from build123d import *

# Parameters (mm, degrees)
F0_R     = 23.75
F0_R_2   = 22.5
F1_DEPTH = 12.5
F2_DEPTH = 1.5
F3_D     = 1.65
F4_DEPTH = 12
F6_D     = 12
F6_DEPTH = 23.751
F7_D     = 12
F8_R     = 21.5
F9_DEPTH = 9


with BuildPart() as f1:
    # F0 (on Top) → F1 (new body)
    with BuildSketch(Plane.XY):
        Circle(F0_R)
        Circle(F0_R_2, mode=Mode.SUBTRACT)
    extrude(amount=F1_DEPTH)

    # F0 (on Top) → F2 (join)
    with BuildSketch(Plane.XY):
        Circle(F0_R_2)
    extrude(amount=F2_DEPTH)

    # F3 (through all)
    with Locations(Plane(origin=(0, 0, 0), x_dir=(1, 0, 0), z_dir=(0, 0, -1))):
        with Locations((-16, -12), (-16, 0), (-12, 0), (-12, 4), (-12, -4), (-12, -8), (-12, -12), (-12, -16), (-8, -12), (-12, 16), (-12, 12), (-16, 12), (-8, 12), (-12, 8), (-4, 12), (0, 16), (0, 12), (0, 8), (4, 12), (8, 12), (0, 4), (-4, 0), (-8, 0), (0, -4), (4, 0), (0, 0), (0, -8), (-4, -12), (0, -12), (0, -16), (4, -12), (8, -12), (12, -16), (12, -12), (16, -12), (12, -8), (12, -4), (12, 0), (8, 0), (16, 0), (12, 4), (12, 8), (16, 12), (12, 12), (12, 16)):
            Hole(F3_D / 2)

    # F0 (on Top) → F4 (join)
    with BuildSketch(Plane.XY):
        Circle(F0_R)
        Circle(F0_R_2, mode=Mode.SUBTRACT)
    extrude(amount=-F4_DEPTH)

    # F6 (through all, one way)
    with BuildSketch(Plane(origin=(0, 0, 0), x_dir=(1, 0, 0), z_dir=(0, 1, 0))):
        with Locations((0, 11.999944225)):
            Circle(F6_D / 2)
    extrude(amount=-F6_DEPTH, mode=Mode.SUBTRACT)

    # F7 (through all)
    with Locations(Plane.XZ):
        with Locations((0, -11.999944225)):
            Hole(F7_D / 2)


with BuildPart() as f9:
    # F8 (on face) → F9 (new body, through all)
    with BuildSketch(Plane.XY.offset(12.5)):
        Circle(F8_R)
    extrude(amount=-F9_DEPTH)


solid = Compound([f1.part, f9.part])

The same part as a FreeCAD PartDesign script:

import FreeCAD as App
import Part
import Sketcher
from FreeCAD import Vector
Q = App.Units.Quantity

doc = App.newDocument("Part")
body = doc.addObject("PartDesign::Body", "Body")

# Sketch on XY plane
sketch1 = body.newObject("Sketcher::SketchObject", "Sketch")
sketch1.AttachmentSupport = (doc.getObject("XY_Plane"), [""])
sketch1.MapMode = "FlatFace"
sketch1.addGeometry([
    Part.Circle(Vector(0, 0, 0), Vector(0, 0, 1), 23.75),
    Part.Circle(Vector(0, 0, 0), Vector(0, 0, 1), 22.5),
], False)
sketch1.addConstraint([
    Sketcher.Constraint("Coincident", 0, 3, -1, 1),
    Sketcher.Constraint("Coincident", 1, 3, -1, 1),
    Sketcher.Constraint("Diameter", 1, Q("45 mm")),
    Sketcher.Constraint("Diameter", 0, Q("47.5 mm")),
])
pad1 = body.newObject("PartDesign::Pad", "Pad")
pad1.Profile = sketch1
pad1.Length = 12.5

# Sketch on XY plane
sketch2 = body.newObject("Sketcher::SketchObject", "Sketch001")
sketch2.AttachmentSupport = (doc.getObject("XY_Plane"), [""])
sketch2.MapMode = "FlatFace"
sketch2.addGeometry(Part.Circle(Vector(0, 0, 0), Vector(0, 0, 1), 22.5), False)
sketch2.addConstraint([
    Sketcher.Constraint("Coincident", 0, 3, -1, 1),
    Sketcher.Constraint("Diameter", 0, Q("45 mm")),
])
pad2 = body.newObject("PartDesign::Pad", "Pad001")
pad2.Profile = sketch2
pad2.Length = 1.5

# Sketch on XY plane
sketch3 = body.newObject("Sketcher::SketchObject", "Sketch002")
sketch3.AttachmentSupport = (doc.getObject("XY_Plane"), [""])
sketch3.MapMode = "FlatFace"
sketch3.addGeometry([
    Part.Circle(Vector(-16, 12, 0), Vector(0, 0, 1), 0.825),  # 0
    Part.Circle(Vector(-16, 0, 0), Vector(0, 0, 1), 0.825),  # 1
    Part.Circle(Vector(-12, 0, 0), Vector(0, 0, 1), 0.825),  # 2
    Part.Circle(Vector(-12, -4, 0), Vector(0, 0, 1), 0.825),  # 3
    Part.Circle(Vector(-12, 4, 0), Vector(0, 0, 1), 0.825),  # 4
    Part.Circle(Vector(-12, 8, 0), Vector(0, 0, 1), 0.825),  # 5
    Part.Circle(Vector(-12, 12, 0), Vector(0, 0, 1), 0.825),  # 6
    Part.Circle(Vector(-12, 16, 0), Vector(0, 0, 1), 0.825),  # 7
    Part.Circle(Vector(-8, 12, 0), Vector(0, 0, 1), 0.825),  # 8
    Part.Circle(Vector(-12, -16, 0), Vector(0, 0, 1), 0.825),  # 9
    Part.Circle(Vector(-12, -12, 0), Vector(0, 0, 1), 0.825),  # 10
    Part.Circle(Vector(-16, -12, 0), Vector(0, 0, 1), 0.825),  # 11
    Part.Circle(Vector(-8, -12, 0), Vector(0, 0, 1), 0.825),  # 12
    Part.Circle(Vector(-12, -8, 0), Vector(0, 0, 1), 0.825),  # 13
    Part.Circle(Vector(-4, -12, 0), Vector(0, 0, 1), 0.825),  # 14
    Part.Circle(Vector(0, -16, 0), Vector(0, 0, 1), 0.825),  # 15
    Part.Circle(Vector(0, -12, 0), Vector(0, 0, 1), 0.825),  # 16
    Part.Circle(Vector(0, -8, 0), Vector(0, 0, 1), 0.825),  # 17
    Part.Circle(Vector(4, -12, 0), Vector(0, 0, 1), 0.825),  # 18
    Part.Circle(Vector(8, -12, 0), Vector(0, 0, 1), 0.825),  # 19
    Part.Circle(Vector(0, -4, 0), Vector(0, 0, 1), 0.825),  # 20
    Part.Circle(Vector(-4, 0, 0), Vector(0, 0, 1), 0.825),  # 21
    Part.Circle(Vector(-8, 0, 0), Vector(0, 0, 1), 0.825),  # 22
    Part.Circle(Vector(0, 4, 0), Vector(0, 0, 1), 0.825),  # 23
    Part.Circle(Vector(4, 0, 0), Vector(0, 0, 1), 0.825),  # 24
    Part.Circle(Vector(0, 0, 0), Vector(0, 0, 1), 0.825),  # 25
    Part.Circle(Vector(0, 8, 0), Vector(0, 0, 1), 0.825),  # 26
    Part.Circle(Vector(-4, 12, 0), Vector(0, 0, 1), 0.825),  # 27
    Part.Circle(Vector(0, 12, 0), Vector(0, 0, 1), 0.825),  # 28
    Part.Circle(Vector(0, 16, 0), Vector(0, 0, 1), 0.825),  # 29
    Part.Circle(Vector(4, 12, 0), Vector(0, 0, 1), 0.825),  # 30
    Part.Circle(Vector(8, 12, 0), Vector(0, 0, 1), 0.825),  # 31
    Part.Circle(Vector(12, 16, 0), Vector(0, 0, 1), 0.825),  # 32
    Part.Circle(Vector(12, 12, 0), Vector(0, 0, 1), 0.825),  # 33
    Part.Circle(Vector(16, 12, 0), Vector(0, 0, 1), 0.825),  # 34
    Part.Circle(Vector(12, 8, 0), Vector(0, 0, 1), 0.825),  # 35
    Part.Circle(Vector(12, 4, 0), Vector(0, 0, 1), 0.825),  # 36
    Part.Circle(Vector(12, 0, 0), Vector(0, 0, 1), 0.825),  # 37
    Part.Circle(Vector(8, 0, 0), Vector(0, 0, 1), 0.825),  # 38
    Part.Circle(Vector(16, 0, 0), Vector(0, 0, 1), 0.825),  # 39
    Part.Circle(Vector(12, -4, 0), Vector(0, 0, 1), 0.825),  # 40
    Part.Circle(Vector(12, -8, 0), Vector(0, 0, 1), 0.825),  # 41
    Part.Circle(Vector(16, -12, 0), Vector(0, 0, 1), 0.825),  # 42
    Part.Circle(Vector(12, -12, 0), Vector(0, 0, 1), 0.825),  # 43
    Part.Circle(Vector(12, -16, 0), Vector(0, 0, 1), 0.825),  # 44
], False)
sketch3.addConstraint([
    Sketcher.Constraint("Coincident", 25, 3, -1, 1),
    Sketcher.Constraint("Equal", 0, 1),
    Sketcher.Constraint("Equal", 1, 2),
    Sketcher.Constraint("Equal", 2, 3),
    Sketcher.Constraint("Equal", 3, 4),
    Sketcher.Constraint("Equal", 4, 5),
    Sketcher.Constraint("Equal", 5, 6),
    Sketcher.Constraint("Equal", 6, 7),
    Sketcher.Constraint("Equal", 7, 8),
    Sketcher.Constraint("Equal", 8, 9),
    Sketcher.Constraint("Equal", 9, 10),
    Sketcher.Constraint("Equal", 10, 11),
    Sketcher.Constraint("Equal", 11, 12),
    Sketcher.Constraint("Equal", 12, 13),
    Sketcher.Constraint("Equal", 13, 14),
    Sketcher.Constraint("Equal", 14, 15),
    Sketcher.Constraint("Equal", 15, 16),
    Sketcher.Constraint("Equal", 16, 17),
    Sketcher.Constraint("Equal", 17, 18),
    Sketcher.Constraint("Equal", 18, 19),
    Sketcher.Constraint("Equal", 19, 20),
    Sketcher.Constraint("Equal", 20, 21),
    Sketcher.Constraint("Equal", 21, 22),
    Sketcher.Constraint("Equal", 22, 23),
    Sketcher.Constraint("Equal", 23, 24),
    Sketcher.Constraint("Equal", 24, 25),
    Sketcher.Constraint("Equal", 25, 26),
    Sketcher.Constraint("Equal", 26, 27),
    Sketcher.Constraint("Equal", 27, 28),
    Sketcher.Constraint("Equal", 28, 29),
    Sketcher.Constraint("Equal", 29, 30),
    Sketcher.Constraint("Equal", 30, 31),
    Sketcher.Constraint("Equal", 31, 32),
    Sketcher.Constraint("Equal", 32, 33),
    Sketcher.Constraint("Equal", 33, 34),
    Sketcher.Constraint("Equal", 34, 35),
    Sketcher.Constraint("Equal", 35, 36),
    Sketcher.Constraint("Equal", 36, 37),
    Sketcher.Constraint("Equal", 37, 38),
    Sketcher.Constraint("Equal", 38, 39),
    Sketcher.Constraint("Equal", 39, 40),
    Sketcher.Constraint("Equal", 40, 41),
    Sketcher.Constraint("Equal", 41, 42),
    Sketcher.Constraint("Equal", 42, 43),
    Sketcher.Constraint("Equal", 43, 44),
    Sketcher.Constraint("Symmetric", 8, 3, 19, 3, -1, 1),
    Sketcher.Constraint("Symmetric", 20, 3, 23, 3, -1, 1),
    Sketcher.Constraint("Symmetric", 21, 3, 24, 3, -1, 1),
    Sketcher.Constraint("Symmetric", 17, 3, 26, 3, -1, 1),
    Sketcher.Constraint("Symmetric", 18, 3, 27, 3, -1, 1),
    Sketcher.Constraint("Symmetric", 16, 3, 28, 3, -1, 1),
    Sketcher.Constraint("Symmetric", 15, 3, 29, 3, -1, 1),
    Sketcher.Constraint("Symmetric", 14, 3, 30, 3, -1, 1),
    Sketcher.Constraint("Symmetric", 12, 3, 31, 3, -1, 1),
    Sketcher.Constraint("Symmetric", 9, 3, 32, 3, -1, 1),
    Sketcher.Constraint("Symmetric", 10, 3, 33, 3, -1, 1),
    Sketcher.Constraint("Symmetric", 11, 3, 34, 3, -1, 1),
    Sketcher.Constraint("Symmetric", 13, 3, 35, 3, -1, 1),
    Sketcher.Constraint("Symmetric", 3, 3, 36, 3, -1, 1),
    Sketcher.Constraint("Symmetric", 2, 3, 37, 3, -1, 1),
    Sketcher.Constraint("Symmetric", 22, 3, 38, 3, -1, 1),
    Sketcher.Constraint("Symmetric", 1, 3, 39, 3, -1, 1),
    Sketcher.Constraint("Symmetric", 4, 3, 40, 3, -1, 1),
    Sketcher.Constraint("Symmetric", 5, 3, 41, 3, -1, 1),
    Sketcher.Constraint("Symmetric", 0, 3, 42, 3, -1, 1),
    Sketcher.Constraint("Symmetric", 6, 3, 43, 3, -1, 1),
    Sketcher.Constraint("Symmetric", 7, 3, 44, 3, -1, 1),
    Sketcher.Constraint("Symmetric", 14, 3, 18, 3, -2),
    Sketcher.Constraint("Symmetric", 12, 3, 19, 3, -2),
    Sketcher.Constraint("Symmetric", 7, 3, 32, 3, -2),
    Sketcher.Constraint("Symmetric", 6, 3, 33, 3, -2),
    Sketcher.Constraint("Symmetric", 0, 3, 34, 3, -2),
    Sketcher.Constraint("Symmetric", 5, 3, 35, 3, -2),
    Sketcher.Constraint("Symmetric", 4, 3, 36, 3, -2),
    Sketcher.Constraint("PointOnObject", 1, 3, -1),
    Sketcher.Constraint("PointOnObject", 2, 3, -1),
    Sketcher.Constraint("PointOnObject", 15, 3, -2),
    Sketcher.Constraint("PointOnObject", 16, 3, -2),
    Sketcher.Constraint("PointOnObject", 17, 3, -2),
    Sketcher.Constraint("PointOnObject", 20, 3, -2),
    Sketcher.Constraint("PointOnObject", 21, 3, -1),
    Sketcher.Constraint("PointOnObject", 22, 3, -1),
    Sketcher.Constraint("Horizontal", 0, 3, 6, 3),
    Sketcher.Constraint("Horizontal", 6, 3, 8, 3),
    Sketcher.Constraint("Horizontal", 12, 3, 14, 3),
    Sketcher.Constraint("Horizontal", 9, 3, 15, 3),
    Sketcher.Constraint("Horizontal", 14, 3, 16, 3),
    Sketcher.Constraint("Horizontal", 13, 3, 17, 3),
    Sketcher.Constraint("Horizontal", 3, 3, 20, 3),
    Sketcher.Constraint("Vertical", 0, 3, 1, 3),
    Sketcher.Constraint("Vertical", 2, 3, 3, 3),
    Sketcher.Constraint("Vertical", 4, 3, 5, 3),
    Sketcher.Constraint("Vertical", 5, 3, 6, 3),
    Sketcher.Constraint("Vertical", 6, 3, 7, 3),
    Sketcher.Constraint("Vertical", 14, 3, 21, 3),
    Sketcher.Constraint("Vertical", 12, 3, 22, 3),
    Sketcher.Constraint("Diameter", 0, Q("1.65 mm")),
    Sketcher.Constraint("DistanceX", 0, 3, -1, 1, Q("16 mm")),
    Sketcher.Constraint("DistanceY", -1, 1, 0, 3, Q("12 mm")),
    Sketcher.Constraint("DistanceX", 2, 3, -1, 1, Q("12 mm")),
    Sketcher.Constraint("DistanceY", 3, 3, -1, 1, Q("4 mm")),
    Sketcher.Constraint("DistanceY", -1, 1, 5, 3, Q("8 mm")),
    Sketcher.Constraint("DistanceY", -1, 1, 7, 3, Q("16 mm")),
    Sketcher.Constraint("DistanceX", 8, 3, -1, 1, Q("8 mm")),
    Sketcher.Constraint("DistanceX", 14, 3, -1, 1, Q("4 mm")),
])
doc.recompute()
hole = body.newObject("PartDesign::Hole", "Hole")
hole.Profile = sketch3
hole.ThreadType = "None"
hole.Diameter = 1.65
hole.DepthType = "ThroughAll"
hole.Reversed = True

# Sketch on XY plane
sketch4 = body.newObject("Sketcher::SketchObject", "Sketch003")
sketch4.AttachmentSupport = (doc.getObject("XY_Plane"), [""])
sketch4.MapMode = "FlatFace"
sketch4.addGeometry([
    Part.Circle(Vector(0, 0, 0), Vector(0, 0, 1), 23.75),
    Part.Circle(Vector(0, 0, 0), Vector(0, 0, 1), 22.5),
], False)
sketch4.addConstraint([
    Sketcher.Constraint("Coincident", 0, 3, -1, 1),
    Sketcher.Constraint("Coincident", 1, 3, -1, 1),
    Sketcher.Constraint("Diameter", 1, Q("45 mm")),
    Sketcher.Constraint("Diameter", 0, Q("47.5 mm")),
])
pad3 = body.newObject("PartDesign::Pad", "Pad002")
pad3.Profile = sketch4
pad3.Length = 12
pad3.Reversed = True

# Sketch on XZ plane
sketch5 = body.newObject("Sketcher::SketchObject", "Sketch004")
sketch5.AttachmentSupport = (doc.getObject("XZ_Plane"), [""])
sketch5.MapMode = "FlatFace"
sketch5.addGeometry(Part.Circle(Vector(0, -11.999944, 0), Vector(0, 0, 1), 6), False)
sketch5.addConstraint([
    Sketcher.Constraint("PointOnObject", 0, 3, -2),
    Sketcher.Constraint("Diameter", 0, Q("12 mm")),
    Sketcher.Constraint("DistanceY", 0, 3, -1, 1, Q("11.999944 mm")),
])
pocket1 = body.newObject("PartDesign::Pocket", "Pocket")
pocket1.Profile = sketch5
pocket1.Type = "ThroughAll"
pocket1.Reversed = True

# Sketch on XZ plane
sketch6 = body.newObject("Sketcher::SketchObject", "Sketch005")
sketch6.AttachmentSupport = (doc.getObject("XZ_Plane"), [""])
sketch6.MapMode = "FlatFace"
sketch6.addGeometry(Part.Circle(Vector(0, -11.999944, 0), Vector(0, 0, 1), 6), False)
sketch6.addConstraint([
    Sketcher.Constraint("PointOnObject", 0, 3, -2),
    Sketcher.Constraint("Diameter", 0, Q("12 mm")),
    Sketcher.Constraint("DistanceY", 0, 3, -1, 1, Q("11.999944 mm")),
])
doc.recompute()
hole2 = body.newObject("PartDesign::Hole", "Hole001")
hole2.Profile = sketch6
hole2.ThreadType = "None"
hole2.Diameter = 12
hole2.DepthType = "ThroughAll"
body2 = doc.addObject("PartDesign::Body", "Body001")

# Sketch on XY plane
sketch7 = body2.newObject("Sketcher::SketchObject", "Sketch006")
sketch7.AttachmentSupport = (doc.getObject("XY_Plane001"), [""])
sketch7.MapMode = "FlatFace"
sketch7.AttachmentOffset = App.Placement(Vector(0, 0, 12.5), App.Rotation())
sketch7.addGeometry(Part.Circle(Vector(0, 0, 0), Vector(0, 0, 1), 21.5), False)
sketch7.addConstraint([
    Sketcher.Constraint("Coincident", 0, 3, -1, 1),
    Sketcher.Constraint("Diameter", 0, Q("43 mm")),
])
pad4 = body2.newObject("PartDesign::Pad", "Pad003")
pad4.Profile = sketch7
pad4.Length = 9
pad4.Reversed = True

doc.recompute()
